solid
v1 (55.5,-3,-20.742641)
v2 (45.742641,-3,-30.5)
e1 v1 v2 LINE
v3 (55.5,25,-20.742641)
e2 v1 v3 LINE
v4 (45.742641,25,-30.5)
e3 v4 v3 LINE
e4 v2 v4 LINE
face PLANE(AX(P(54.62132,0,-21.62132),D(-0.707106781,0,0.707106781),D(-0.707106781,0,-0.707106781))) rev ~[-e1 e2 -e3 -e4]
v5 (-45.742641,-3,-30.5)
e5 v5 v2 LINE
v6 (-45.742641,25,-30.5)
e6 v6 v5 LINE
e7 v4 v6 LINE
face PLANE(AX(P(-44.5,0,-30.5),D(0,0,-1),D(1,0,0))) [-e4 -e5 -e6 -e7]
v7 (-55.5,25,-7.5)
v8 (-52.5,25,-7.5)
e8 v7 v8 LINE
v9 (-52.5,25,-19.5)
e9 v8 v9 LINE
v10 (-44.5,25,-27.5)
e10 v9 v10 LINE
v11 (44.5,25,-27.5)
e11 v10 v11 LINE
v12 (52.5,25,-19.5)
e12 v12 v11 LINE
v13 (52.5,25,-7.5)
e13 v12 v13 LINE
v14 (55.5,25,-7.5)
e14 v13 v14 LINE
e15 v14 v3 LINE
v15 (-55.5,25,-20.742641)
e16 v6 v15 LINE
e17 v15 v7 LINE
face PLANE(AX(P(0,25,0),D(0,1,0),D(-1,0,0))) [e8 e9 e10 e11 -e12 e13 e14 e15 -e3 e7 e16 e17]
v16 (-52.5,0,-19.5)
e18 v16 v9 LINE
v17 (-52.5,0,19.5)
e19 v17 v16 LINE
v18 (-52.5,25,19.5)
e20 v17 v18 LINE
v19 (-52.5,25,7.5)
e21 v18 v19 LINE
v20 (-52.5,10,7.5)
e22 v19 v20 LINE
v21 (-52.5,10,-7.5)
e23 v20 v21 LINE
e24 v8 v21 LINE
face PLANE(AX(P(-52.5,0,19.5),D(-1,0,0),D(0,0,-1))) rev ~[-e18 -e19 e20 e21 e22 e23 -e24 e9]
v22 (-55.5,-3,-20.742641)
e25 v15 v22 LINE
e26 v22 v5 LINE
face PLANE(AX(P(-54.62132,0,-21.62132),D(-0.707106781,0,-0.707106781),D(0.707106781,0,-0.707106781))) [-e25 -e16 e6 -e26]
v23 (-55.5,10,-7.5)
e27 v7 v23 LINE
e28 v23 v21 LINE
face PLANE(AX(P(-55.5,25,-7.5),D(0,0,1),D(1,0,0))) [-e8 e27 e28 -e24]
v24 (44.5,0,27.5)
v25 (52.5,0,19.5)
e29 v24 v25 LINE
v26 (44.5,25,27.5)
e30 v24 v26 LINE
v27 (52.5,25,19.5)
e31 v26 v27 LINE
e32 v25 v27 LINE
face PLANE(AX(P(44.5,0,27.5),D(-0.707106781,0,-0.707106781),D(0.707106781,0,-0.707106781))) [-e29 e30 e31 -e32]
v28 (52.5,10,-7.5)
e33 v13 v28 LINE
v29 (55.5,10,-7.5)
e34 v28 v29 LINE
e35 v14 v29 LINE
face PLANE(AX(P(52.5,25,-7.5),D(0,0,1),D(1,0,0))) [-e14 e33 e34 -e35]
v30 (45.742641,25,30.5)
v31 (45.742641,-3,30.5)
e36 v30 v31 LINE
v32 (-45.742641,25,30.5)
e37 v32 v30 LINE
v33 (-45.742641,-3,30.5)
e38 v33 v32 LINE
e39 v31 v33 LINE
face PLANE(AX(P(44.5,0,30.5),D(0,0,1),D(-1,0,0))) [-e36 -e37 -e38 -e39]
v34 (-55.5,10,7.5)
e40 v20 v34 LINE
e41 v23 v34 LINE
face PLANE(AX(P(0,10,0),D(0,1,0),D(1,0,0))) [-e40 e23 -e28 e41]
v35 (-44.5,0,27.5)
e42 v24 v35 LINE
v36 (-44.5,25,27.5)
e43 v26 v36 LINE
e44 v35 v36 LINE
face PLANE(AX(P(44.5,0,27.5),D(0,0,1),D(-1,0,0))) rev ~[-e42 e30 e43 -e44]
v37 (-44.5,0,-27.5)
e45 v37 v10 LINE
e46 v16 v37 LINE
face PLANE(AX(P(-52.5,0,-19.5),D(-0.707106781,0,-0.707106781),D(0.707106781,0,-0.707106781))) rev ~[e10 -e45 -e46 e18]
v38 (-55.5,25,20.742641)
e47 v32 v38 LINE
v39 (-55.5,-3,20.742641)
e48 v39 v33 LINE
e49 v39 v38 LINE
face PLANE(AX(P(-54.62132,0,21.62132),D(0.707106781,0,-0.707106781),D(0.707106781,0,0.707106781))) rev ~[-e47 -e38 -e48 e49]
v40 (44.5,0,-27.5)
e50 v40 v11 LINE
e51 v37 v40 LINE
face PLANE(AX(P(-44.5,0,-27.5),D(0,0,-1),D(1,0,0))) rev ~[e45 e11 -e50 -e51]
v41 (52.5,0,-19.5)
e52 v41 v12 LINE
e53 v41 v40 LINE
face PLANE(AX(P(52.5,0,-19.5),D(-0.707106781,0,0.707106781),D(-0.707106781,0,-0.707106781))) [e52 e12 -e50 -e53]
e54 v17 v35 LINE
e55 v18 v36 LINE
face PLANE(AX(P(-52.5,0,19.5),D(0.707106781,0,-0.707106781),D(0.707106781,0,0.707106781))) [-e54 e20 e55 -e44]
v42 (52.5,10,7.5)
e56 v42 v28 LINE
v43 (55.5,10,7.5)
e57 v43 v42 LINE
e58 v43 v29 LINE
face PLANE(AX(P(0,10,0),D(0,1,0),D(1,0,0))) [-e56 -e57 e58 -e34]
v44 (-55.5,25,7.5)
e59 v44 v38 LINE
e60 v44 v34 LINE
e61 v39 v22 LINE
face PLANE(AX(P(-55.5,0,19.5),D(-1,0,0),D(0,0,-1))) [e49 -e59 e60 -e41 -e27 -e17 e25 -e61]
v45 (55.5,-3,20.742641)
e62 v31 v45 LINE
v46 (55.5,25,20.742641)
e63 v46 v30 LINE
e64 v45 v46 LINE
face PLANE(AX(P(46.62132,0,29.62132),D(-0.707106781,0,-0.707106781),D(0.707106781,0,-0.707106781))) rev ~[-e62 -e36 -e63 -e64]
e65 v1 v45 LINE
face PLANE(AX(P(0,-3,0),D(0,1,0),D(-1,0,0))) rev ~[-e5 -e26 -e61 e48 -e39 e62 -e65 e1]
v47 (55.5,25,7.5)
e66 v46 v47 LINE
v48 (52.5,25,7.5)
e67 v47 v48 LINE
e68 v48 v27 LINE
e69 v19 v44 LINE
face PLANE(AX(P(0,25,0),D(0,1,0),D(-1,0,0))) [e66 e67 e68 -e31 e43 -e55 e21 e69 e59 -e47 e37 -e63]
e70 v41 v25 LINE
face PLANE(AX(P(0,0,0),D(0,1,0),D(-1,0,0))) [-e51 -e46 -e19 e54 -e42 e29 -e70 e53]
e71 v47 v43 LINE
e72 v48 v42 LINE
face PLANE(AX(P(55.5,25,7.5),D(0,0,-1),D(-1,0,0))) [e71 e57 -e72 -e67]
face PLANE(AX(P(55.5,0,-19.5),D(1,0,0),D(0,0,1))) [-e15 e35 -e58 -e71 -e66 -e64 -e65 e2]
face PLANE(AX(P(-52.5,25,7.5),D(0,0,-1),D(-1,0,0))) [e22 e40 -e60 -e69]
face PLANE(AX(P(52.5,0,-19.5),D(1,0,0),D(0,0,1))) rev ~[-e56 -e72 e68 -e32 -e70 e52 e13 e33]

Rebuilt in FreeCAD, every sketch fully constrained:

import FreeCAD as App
import Part
import Sketcher


def faces_at(feature, points):
    """Names of the faces that lie closest to the given points."""
    faces = feature.Shape.Faces
    near = lambda p: min(range(len(faces)), key=lambda i: faces[i].distToShape(Part.Vertex(*p))[0])
    return sorted({f"Face{near(p) + 1}" for p in points})

doc = App.newDocument("Part")
body = doc.addObject("PartDesign::Body", "Body")

sketch1 = body.newObject("Sketcher::SketchObject", "Sketch")
sketch1.AttachmentSupport = (doc.getObject("XZ_Plane"), [""])
sketch1.MapMode = "FlatFace"
sketch1.addGeometry([
    Part.LineSegment(App.Vector(-44, 28, 0), App.Vector(44, 28, 0)),
    Part.LineSegment(App.Vector(44, 28, 0), App.Vector(52, 20, 0)),
    Part.LineSegment(App.Vector(52, 20, 0), App.Vector(52, -20, 0)),
    Part.LineSegment(App.Vector(52, -20, 0), App.Vector(44, -28, 0)),
    Part.LineSegment(App.Vector(44, -28, 0), App.Vector(-44, -28, 0)),
    Part.LineSegment(App.Vector(-44, -28, 0), App.Vector(-52, -20, 0)),
    Part.LineSegment(App.Vector(-52, -20, 0), App.Vector(-52, 20, 0)),
    Part.LineSegment(App.Vector(-52, 20, 0), App.Vector(-44, 28, 0)),
], False)
sketch1.addConstraint([
    Sketcher.Constraint("Coincident", 0, 2, 1, 1),
    Sketcher.Constraint("Coincident", 1, 2, 2, 1),
    Sketcher.Constraint("Coincident", 2, 2, 3, 1),
    Sketcher.Constraint("Coincident", 3, 2, 4, 1),
    Sketcher.Constraint("Coincident", 4, 2, 5, 1),
    Sketcher.Constraint("Coincident", 5, 2, 6, 1),
    Sketcher.Constraint("Coincident", 6, 2, 7, 1),
    Sketcher.Constraint("Coincident", 7, 2, 0, 1),
    Sketcher.Constraint("Horizontal", 0),
    Sketcher.Constraint("Vertical", 2),
    Sketcher.Constraint("Horizontal", 4),
    Sketcher.Constraint("Vertical", 6),
    Sketcher.Constraint("Symmetric", 0, 2, 4, 2, -1, 1),
    Sketcher.Constraint("Symmetric", 1, 2, 5, 2, -1, 1),
    Sketcher.Constraint("Perpendicular", 1, 3),
    Sketcher.Constraint("Perpendicular", 5, 7),
    Sketcher.Constraint("Horizontal", 2, 2, 5, 2),
    Sketcher.Constraint("Horizontal", 1, 2, 6, 2),
    Sketcher.Constraint("Vertical", 0, 2, 3, 2),
    Sketcher.Constraint("DistanceX", 0, 2, 1, 2, 8.0),
    Sketcher.Constraint("DistanceY", 3, 2, 0, 2, 55.0),
    Sketcher.Constraint("DistanceX", 5, 2, 2, 2, 105.0),
])
pad1 = body.newObject("PartDesign::Pad", "Pad")
pad1.Profile = sketch1
pad1.Length = 25
pad1.Reversed = True
doc.recompute()

thickness = body.newObject("PartDesign::Thickness", "Thickness")
thickness.Base = (pad1, faces_at(pad1, [(-14.833, 25, -9.167)]))
thickness.Value = 3
thickness.Reversed = False
thickness.Join = "Intersection"

sketch2 = body.newObject("Sketcher::SketchObject", "Sketch001")
sketch2.AttachmentSupport = (doc.getObject("XZ_Plane"), [""])
sketch2.MapMode = "FlatFace"
sketch2.AttachmentOffset = App.Placement(App.Vector(0, 0, -25), App.Rotation())
sketch2.addGeometry([
    Part.LineSegment(App.Vector(-52.5, -7.5, 0), App.Vector(-55.5, -7.5, 0)),
    Part.LineSegment(App.Vector(-55.5, -7.5, 0), App.Vector(-55.5, 7.5, 0)),
    Part.LineSegment(App.Vector(-55.5, 7.5, 0), App.Vector(-52.5, 7.5, 0)),
    Part.LineSegment(App.Vector(-52.5, 7.5, 0), App.Vector(-52.5, -7.5, 0)),
    Part.LineSegment(App.Vector(52.5, 7.5, 0), App.Vector(55.5, 7.5, 0)),
    Part.LineSegment(App.Vector(55.5, 7.5, 0), App.Vector(55.5, -7.5, 0)),
    Part.LineSegment(App.Vector(55.5, -7.5, 0), App.Vector(52.5, -7.5, 0)),
    Part.LineSegment(App.Vector(52.5, -7.5, 0), App.Vector(52.5, 7.5, 0)),
], False)
sketch2.addConstraint([
    Sketcher.Constraint("Coincident", 0, 2, 1, 1),
    Sketcher.Constraint("Coincident", 1, 2, 2, 1),
    Sketcher.Constraint("Coincident", 2, 2, 3, 1),
    Sketcher.Constraint("Coincident", 3, 2, 0, 1),
    Sketcher.Constraint("Coincident", 4, 2, 5, 1),
    Sketcher.Constraint("Coincident", 5, 2, 6, 1),
    Sketcher.Constraint("Coincident", 6, 2, 7, 1),
    Sketcher.Constraint("Coincident", 7, 2, 4, 1),
    Sketcher.Constraint("Horizontal", 0),
    Sketcher.Constraint("Vertical", 1),
    Sketcher.Constraint("Horizontal", 2),
    Sketcher.Constraint("Vertical", 3),
    Sketcher.Constraint("Horizontal", 4),
    Sketcher.Constraint("Vertical", 5),
    Sketcher.Constraint("Horizontal", 6),
    Sketcher.Constraint("Vertical", 7),
    Sketcher.Constraint("Symmetric", 0, 2, 4, 2, -1, 1),
    Sketcher.Constraint("Symmetric", 2, 2, 6, 2, -1, 1),
    Sketcher.Constraint("Horizontal", 2, 2, 4, 2),
    Sketcher.Constraint("DistanceY", 1, 1, 1, 2, 15.0),
    Sketcher.Constraint("DistanceX", 0, 2, 0, 1, 3.0),
    Sketcher.Constraint("DistanceX", 2, 2, 4, 2, 108.0),
])
pocket1 = body.newObject("PartDesign::Pocket", "Pocket")
pocket1.Profile = sketch2
pocket1.Length = 15
pocket1.Reversed = True

doc.recompute()
